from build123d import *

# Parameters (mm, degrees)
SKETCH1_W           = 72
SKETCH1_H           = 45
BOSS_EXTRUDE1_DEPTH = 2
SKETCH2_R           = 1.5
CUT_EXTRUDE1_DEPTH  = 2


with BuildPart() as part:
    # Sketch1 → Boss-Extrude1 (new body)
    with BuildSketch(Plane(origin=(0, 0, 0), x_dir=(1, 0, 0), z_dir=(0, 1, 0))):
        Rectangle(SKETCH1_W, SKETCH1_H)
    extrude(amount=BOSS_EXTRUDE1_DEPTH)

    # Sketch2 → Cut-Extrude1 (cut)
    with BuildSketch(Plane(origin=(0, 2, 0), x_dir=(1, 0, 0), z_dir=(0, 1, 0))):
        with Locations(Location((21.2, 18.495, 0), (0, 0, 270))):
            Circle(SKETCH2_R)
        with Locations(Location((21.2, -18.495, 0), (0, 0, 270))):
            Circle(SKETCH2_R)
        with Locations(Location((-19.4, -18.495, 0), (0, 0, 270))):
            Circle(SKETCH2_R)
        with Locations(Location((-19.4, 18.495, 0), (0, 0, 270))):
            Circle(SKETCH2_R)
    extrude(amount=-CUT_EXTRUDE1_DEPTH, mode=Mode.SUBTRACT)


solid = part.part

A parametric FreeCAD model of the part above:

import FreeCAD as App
import Part
import Sketcher
from FreeCAD import Vector

doc = App.newDocument("Part")
body = doc.addObject("PartDesign::Body", "Body")

# Sketch on XZ plane
sketch1 = body.newObject("Sketcher::SketchObject", "Sketch")
sketch1.AttachmentSupport = (doc.getObject("XZ_Plane"), [""])
sketch1.MapMode = "FlatFace"
sketch1.addGeometry([
    Part.LineSegment(Vector(-36, -22, 0), Vector(-36, 22, 0)),
    Part.LineSegment(Vector(-36, 22, 0), Vector(36, 22, 0)),
    Part.LineSegment(Vector(36, 22, 0), Vector(36, -22, 0)),
    Part.LineSegment(Vector(36, -22, 0), Vector(-36, -22, 0)),
], False)
sketch1.addConstraint([
    Sketcher.Constraint("Coincident", 0, 2, 1, 1),
    Sketcher.Constraint("Coincident", 1, 2, 2, 1),
    Sketcher.Constraint("Coincident", 2, 2, 3, 1),
    Sketcher.Constraint("Coincident", 3, 2, 0, 1),
    Sketcher.Constraint("Vertical", 0),
    Sketcher.Constraint("Horizontal", 1),
    Sketcher.Constraint("Vertical", 2),
    Sketcher.Constraint("Horizontal", 3),
    Sketcher.Constraint("Symmetric", 0, 2, 2, 2, -1, 1),
    Sketcher.Constraint("DistanceX", 1, 1, 1, 2, 72.0),
    Sketcher.Constraint("DistanceY", 0, 1, 0, 2, 45.0),
])
pad1 = body.newObject("PartDesign::Pad", "Pad")
pad1.Profile = sketch1
pad1.Length = 2
pad1.Reversed = True

# Sketch on XZ plane
sketch2 = body.newObject("Sketcher::SketchObject", "Sketch001")
sketch2.AttachmentSupport = (doc.getObject("XZ_Plane"), [""])
sketch2.MapMode = "FlatFace"
sketch2.AttachmentOffset = App.Placement(Vector(0, 0, -2), App.Rotation())
sketch2.addGeometry([
    Part.Circle(Vector(21.2, -18.5, 0), Vector(0, 0, 1), 1.5),
    Part.Circle(Vector(21.2, 18.5, 0), Vector(0, 0, 1), 1.5),
    Part.Circle(Vector(-19.4, 18.5, 0), Vector(0, 0, 1), 1.5),
    Part.Circle(Vector(-19.4, -18.5, 0), Vector(0, 0, 1), 1.5),
], False)
sketch2.addConstraint([
    Sketcher.Constraint("Equal", 0, 1),
    Sketcher.Constraint("Equal", 1, 2),
    Sketcher.Constraint("Equal", 2, 3),
    Sketcher.Constraint("Symmetric", 0, 3, 1, 3, -1),
    Sketcher.Constraint("Symmetric", 2, 3, 3, 3, -1),
    Sketcher.Constraint("Horizontal", 1, 3, 2, 3),
    Sketcher.Constraint("Diameter", 0, 3.0),
    Sketcher.Constraint("DistanceX", -1, 1, 0, 3, 21.2),
    Sketcher.Constraint("DistanceX", 2, 3, -1, 1, 19.4),
    Sketcher.Constraint("DistanceY", 0, 3, 1, 3, 36.99),
])
pocket1 = body.newObject("PartDesign::Pocket", "Pocket")
pocket1.Profile = sketch2
pocket1.Length = 2
pocket1.Reversed = True

doc.recompute()
